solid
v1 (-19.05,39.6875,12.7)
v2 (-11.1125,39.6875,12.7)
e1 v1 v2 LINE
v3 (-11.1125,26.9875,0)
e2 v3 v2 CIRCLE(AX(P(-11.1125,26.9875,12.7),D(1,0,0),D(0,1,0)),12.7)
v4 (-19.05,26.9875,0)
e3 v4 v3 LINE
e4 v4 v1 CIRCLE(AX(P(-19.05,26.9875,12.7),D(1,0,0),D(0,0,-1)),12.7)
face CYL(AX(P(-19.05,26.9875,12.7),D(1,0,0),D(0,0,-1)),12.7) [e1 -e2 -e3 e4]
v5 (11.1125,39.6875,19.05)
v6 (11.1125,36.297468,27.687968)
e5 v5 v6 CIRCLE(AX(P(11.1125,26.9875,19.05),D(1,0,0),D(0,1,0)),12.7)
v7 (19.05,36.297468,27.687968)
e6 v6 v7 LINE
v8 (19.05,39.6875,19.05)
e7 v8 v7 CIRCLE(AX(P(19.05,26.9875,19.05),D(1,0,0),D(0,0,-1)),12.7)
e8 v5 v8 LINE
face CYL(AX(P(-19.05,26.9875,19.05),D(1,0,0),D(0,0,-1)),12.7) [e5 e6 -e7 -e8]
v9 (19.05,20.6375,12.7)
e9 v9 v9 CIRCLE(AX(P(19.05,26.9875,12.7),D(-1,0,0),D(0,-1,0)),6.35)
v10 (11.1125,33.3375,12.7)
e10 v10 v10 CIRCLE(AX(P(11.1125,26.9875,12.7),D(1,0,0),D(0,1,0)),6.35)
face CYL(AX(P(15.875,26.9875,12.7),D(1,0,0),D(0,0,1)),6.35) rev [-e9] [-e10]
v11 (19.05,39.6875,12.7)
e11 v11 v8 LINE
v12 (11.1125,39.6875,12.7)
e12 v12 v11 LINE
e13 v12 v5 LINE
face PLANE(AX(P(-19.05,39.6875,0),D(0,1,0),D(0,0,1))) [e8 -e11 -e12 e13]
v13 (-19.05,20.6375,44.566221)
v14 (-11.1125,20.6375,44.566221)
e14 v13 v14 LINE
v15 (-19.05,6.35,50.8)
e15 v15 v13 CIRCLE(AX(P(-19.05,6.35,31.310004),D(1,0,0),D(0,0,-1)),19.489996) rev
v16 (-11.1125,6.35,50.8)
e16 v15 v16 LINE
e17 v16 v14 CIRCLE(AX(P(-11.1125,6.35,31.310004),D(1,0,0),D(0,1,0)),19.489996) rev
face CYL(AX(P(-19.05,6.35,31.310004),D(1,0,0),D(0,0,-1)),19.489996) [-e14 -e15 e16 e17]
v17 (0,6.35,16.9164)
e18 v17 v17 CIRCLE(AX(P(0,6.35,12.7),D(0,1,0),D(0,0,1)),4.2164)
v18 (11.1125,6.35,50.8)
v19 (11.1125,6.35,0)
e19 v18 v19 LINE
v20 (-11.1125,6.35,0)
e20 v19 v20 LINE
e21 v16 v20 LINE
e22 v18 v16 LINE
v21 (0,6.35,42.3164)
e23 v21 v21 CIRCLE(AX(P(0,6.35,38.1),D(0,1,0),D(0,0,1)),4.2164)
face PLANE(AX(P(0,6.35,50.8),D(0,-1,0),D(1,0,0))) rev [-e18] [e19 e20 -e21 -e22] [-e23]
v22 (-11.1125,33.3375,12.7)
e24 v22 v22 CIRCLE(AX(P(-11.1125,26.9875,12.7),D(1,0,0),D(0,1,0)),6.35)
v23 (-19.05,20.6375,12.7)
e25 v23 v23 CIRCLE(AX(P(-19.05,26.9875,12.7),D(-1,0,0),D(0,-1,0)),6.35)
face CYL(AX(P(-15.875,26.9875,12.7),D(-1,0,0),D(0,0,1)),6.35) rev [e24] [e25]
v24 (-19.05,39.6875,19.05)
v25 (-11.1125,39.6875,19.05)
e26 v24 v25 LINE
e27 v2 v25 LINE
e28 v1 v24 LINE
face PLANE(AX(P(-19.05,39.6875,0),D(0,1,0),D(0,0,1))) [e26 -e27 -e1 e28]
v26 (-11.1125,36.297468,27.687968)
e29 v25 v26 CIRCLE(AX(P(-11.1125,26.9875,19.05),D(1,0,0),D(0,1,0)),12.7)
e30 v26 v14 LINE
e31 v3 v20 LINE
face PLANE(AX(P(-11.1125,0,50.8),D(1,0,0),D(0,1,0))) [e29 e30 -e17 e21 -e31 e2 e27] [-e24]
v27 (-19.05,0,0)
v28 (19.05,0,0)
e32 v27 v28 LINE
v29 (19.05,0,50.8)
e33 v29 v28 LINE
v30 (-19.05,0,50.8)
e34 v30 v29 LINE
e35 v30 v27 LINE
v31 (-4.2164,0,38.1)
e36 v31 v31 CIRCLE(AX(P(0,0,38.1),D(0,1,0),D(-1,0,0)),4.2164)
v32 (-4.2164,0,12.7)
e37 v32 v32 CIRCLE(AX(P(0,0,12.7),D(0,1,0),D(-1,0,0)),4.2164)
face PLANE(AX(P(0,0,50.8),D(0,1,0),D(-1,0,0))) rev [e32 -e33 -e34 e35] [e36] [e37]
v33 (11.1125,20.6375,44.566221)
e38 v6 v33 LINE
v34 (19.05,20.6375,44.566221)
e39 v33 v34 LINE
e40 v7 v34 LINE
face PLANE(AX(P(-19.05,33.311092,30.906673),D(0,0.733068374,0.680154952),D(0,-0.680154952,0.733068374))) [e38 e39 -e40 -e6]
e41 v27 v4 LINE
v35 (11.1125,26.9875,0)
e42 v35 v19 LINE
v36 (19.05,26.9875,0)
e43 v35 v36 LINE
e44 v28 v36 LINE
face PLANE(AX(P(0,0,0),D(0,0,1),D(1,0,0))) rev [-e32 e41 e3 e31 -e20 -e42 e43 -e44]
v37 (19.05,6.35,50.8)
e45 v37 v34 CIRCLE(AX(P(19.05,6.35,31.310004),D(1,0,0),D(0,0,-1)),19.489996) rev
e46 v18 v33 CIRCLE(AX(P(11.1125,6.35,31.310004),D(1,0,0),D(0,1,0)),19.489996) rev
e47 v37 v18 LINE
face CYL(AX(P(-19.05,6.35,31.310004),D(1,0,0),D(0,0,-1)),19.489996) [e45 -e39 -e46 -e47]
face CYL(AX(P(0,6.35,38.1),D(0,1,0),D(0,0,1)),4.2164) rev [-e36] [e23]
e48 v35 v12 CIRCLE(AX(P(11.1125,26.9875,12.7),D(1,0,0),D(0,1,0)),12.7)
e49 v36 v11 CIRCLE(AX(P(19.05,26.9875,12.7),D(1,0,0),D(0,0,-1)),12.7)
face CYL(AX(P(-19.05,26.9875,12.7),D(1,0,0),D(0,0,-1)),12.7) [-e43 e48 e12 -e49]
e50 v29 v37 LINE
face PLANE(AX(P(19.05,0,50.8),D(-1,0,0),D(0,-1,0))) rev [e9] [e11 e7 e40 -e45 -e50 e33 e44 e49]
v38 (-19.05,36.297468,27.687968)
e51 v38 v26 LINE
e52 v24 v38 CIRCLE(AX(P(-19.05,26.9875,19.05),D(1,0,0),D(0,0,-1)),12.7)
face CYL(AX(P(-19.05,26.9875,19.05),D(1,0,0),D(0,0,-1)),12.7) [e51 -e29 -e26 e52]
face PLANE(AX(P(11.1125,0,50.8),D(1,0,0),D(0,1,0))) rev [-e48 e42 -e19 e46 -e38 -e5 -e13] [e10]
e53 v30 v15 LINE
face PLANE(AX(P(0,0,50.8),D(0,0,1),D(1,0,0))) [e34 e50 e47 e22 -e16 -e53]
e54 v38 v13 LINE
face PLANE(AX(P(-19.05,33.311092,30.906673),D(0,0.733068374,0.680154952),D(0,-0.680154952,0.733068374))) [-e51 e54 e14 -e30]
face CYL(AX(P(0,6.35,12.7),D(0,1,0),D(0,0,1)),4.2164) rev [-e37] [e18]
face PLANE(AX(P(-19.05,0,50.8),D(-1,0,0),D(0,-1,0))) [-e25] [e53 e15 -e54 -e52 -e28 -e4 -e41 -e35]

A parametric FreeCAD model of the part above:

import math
import FreeCAD as App
import Part
import Sketcher
Q = App.Units.Quantity


def add_polygon(sketch, points):
    """Adds a closed chain of lines whose ends are joined by coincident constraints."""
    first, n = sketch.GeometryCount, len(points)
    for a, b in zip(points, points[1:] + points[:1]):
        sketch.addGeometry(Part.LineSegment(App.Vector(*a, 0), App.Vector(*b, 0)), False)
    for i in range(n):
        sketch.addConstraint(Sketcher.Constraint("Coincident", first + i, 2, first + (i + 1) % n, 1))

doc = App.newDocument("Part")
body = doc.addObject("PartDesign::Body", "Body")

sketch1 = doc.addObject("Sketcher::SketchObject", "Sketch")
body.addObject(sketch1)
sketch1.AttachmentSupport = (doc.XY_Plane, [""])
sketch1.MapMode = "FlatFace"
add_polygon(sketch1, [(-19, 0), (19, 0), (19, 51), (11, 51), (11, 6), (-11, 6), (-11, 51), (-19, 51)])
sketch1.addConstraint(Sketcher.Constraint("Horizontal", 0))
sketch1.addConstraint(Sketcher.Constraint("Vertical", 1))
sketch1.addConstraint(Sketcher.Constraint("Horizontal", 2))
sketch1.addConstraint(Sketcher.Constraint("Vertical", 3))
sketch1.addConstraint(Sketcher.Constraint("Horizontal", 4))
sketch1.addConstraint(Sketcher.Constraint("Vertical", 5))
sketch1.addConstraint(Sketcher.Constraint("Horizontal", 6))
sketch1.addConstraint(Sketcher.Constraint("Vertical", 7))
sketch1.addConstraint(Sketcher.Constraint("Symmetric", 0, 2, 7, 2, -1, 1))
sketch1.addConstraint(Sketcher.Constraint("Symmetric", 2, 2, 5, 2, -2))
sketch1.addConstraint(Sketcher.Constraint("DistanceY", 1, 1, 1, 2, Q("2 in")))
sketch1.addConstraint(Sketcher.Constraint("DistanceX", 0, 1, 0, 2, Q("1.5 in")))
sketch1.addConstraint(Sketcher.Constraint("DistanceY", 3, 2, 3, 1, Q("1.75 in")))
sketch1.addConstraint(Sketcher.Constraint("DistanceX", 2, 2, 2, 1, Q("0.3125 in")))
pad1 = doc.addObject("PartDesign::Pad", "Pad")
body.addObject(pad1)
pad1.Profile = sketch1
pad1.Length = Q("2 in")

sketch2 = doc.addObject("Sketcher::SketchObject", "Sketch001")
body.addObject(sketch2)
sketch2.AttachmentSupport = (doc.YZ_Plane, [""])
sketch2.MapMode = "FlatFace"
sketch2.AttachmentOffset = App.Placement(App.Vector(0, 0, -0.75 * 25.4), App.Rotation())
sketch2.addGeometry(Part.Circle(App.Vector(27, 13, 0), App.Vector(0, 0, 1), 6), False)
sketch2.addConstraint(Sketcher.Constraint("Diameter", 0, Q("0.5 in")))
sketch2.addConstraint(Sketcher.Constraint("DistanceY", -1, 1, 0, 3, Q("0.5 in")))
sketch2.addConstraint(Sketcher.Constraint("DistanceX", -1, 1, 0, 3, Q("1.0625 in")))
pocket1 = doc.addObject("PartDesign::Pocket", "Pocket")
body.addObject(pocket1)
pocket1.Profile = sketch2
pocket1.Length = Q("0.125 in")
pocket1.Reversed = True
doc.recompute()

mirrored = doc.addObject("PartDesign::Mirrored", "Mirrored")
body.addObject(mirrored)
mirrored.Originals = [pocket1]
mirrored.MirrorPlane = (doc.YZ_Plane, [""])
body.Tip = mirrored

sketch3 = doc.addObject("Sketcher::SketchObject", "Sketch002")
body.addObject(sketch3)
sketch3.AttachmentSupport = (doc.YZ_Plane, [""])
sketch3.MapMode = "FlatFace"
sketch3.addGeometry(Part.Circle(App.Vector(27, 13, 0), App.Vector(0, 0, 1), 6), False)
sketch3.addConstraint(Sketcher.Constraint("Diameter", 0, Q("0.5 in")))
sketch3.addConstraint(Sketcher.Constraint("DistanceY", -1, 1, 0, 3, Q("0.5 in")))
sketch3.addConstraint(Sketcher.Constraint("DistanceX", -1, 1, 0, 3, Q("1.0625 in")))
pocket2 = doc.addObject("PartDesign::Pocket", "Pocket001")
body.addObject(pocket2)
pocket2.Profile = sketch3
pocket2.Type = "ThroughAll"
pocket2.Midplane = True

sketch4 = doc.addObject("Sketcher::SketchObject", "Sketch003")
body.addObject(sketch4)
sketch4.AttachmentSupport = (doc.XZ_Plane, [""])
sketch4.MapMode = "FlatFace"
sketch4.AttachmentOffset = App.Placement(App.Vector(0, 0, -0.25 * 25.4), App.Rotation())
sketch4.addGeometry(Part.Circle(App.Vector(0, 38.1, 0), App.Vector(0, 0, 1), 4.2), False)
sketch4.addGeometry(Part.Circle(App.Vector(0, 12.7, 0), App.Vector(0, 0, 1), 4.2), False)
sketch4.addConstraint(Sketcher.Constraint("Equal", 0, 1))
sketch4.addConstraint(Sketcher.Constraint("PointOnObject", 0, 3, -2))
sketch4.addConstraint(Sketcher.Constraint("PointOnObject", 1, 3, -2))
sketch4.addConstraint(Sketcher.Constraint("Diameter", 0, Q("0.332 in")))
sketch4.addConstraint(Sketcher.Constraint("DistanceY", 1, 3, 0, 3, Q("1 in")))
sketch4.addConstraint(Sketcher.Constraint("DistanceY", -1, 1, 0, 3, Q("1.5 in")))
doc.recompute()
hole = doc.addObject("PartDesign::Hole", "Hole")
body.addObject(hole)
hole.Profile = sketch4
hole.ThreadType = "None"
hole.Diameter = Q("0.332 in")
hole.DepthType = "Dimension"
hole.Depth = Q("0.75 in")
hole.DrillPoint = "Angled"
hole.DrillPointAngle = 118
hole.Reversed = True

sketch5 = doc.addObject("Sketcher::SketchObject", "Sketch004")
body.addObject(sketch5)
sketch5.AttachmentSupport = (doc.YZ_Plane, [""])
sketch5.MapMode = "FlatFace"
sketch5.addGeometry(Part.LineSegment(App.Vector(51, 0, 0), App.Vector(51, 51, 0)), False)
sketch5.addGeometry(Part.LineSegment(App.Vector(51, 51, 0), App.Vector(6, 51, 0)), False)
sketch5.addGeometry(Part.ArcOfCircle(Part.Circle(App.Vector(6, 31, 0), App.Vector(0, 0, 1), 19), math.radians(43), math.radians(90)), False)
sketch5.addGeometry(Part.LineSegment(App.Vector(21, 45, 0), App.Vector(36, 28, 0)), False)
sketch5.addGeometry(Part.ArcOfCircle(Part.Circle(App.Vector(27, 19, 0), App.Vector(0, 0, 1), 13), math.radians(0), math.radians(43)), False)
sketch5.addGeometry(Part.LineSegment(App.Vector(40, 19, 0), App.Vector(40, 13, 0)), False)
sketch5.addGeometry(Part.ArcOfCircle(Part.Circle(App.Vector(27, 13, 0), App.Vector(0, 0, 1), 13), math.radians(-90), math.radians(0)), False)
sketch5.addGeometry(Part.LineSegment(App.Vector(27, 0, 0), App.Vector(51, 0, 0)), False)
sketch5.addConstraint(Sketcher.Constraint("Coincident", 0, 2, 1, 1))
sketch5.addConstraint(Sketcher.Constraint("Tangent", 1, 2, 2, 2))
sketch5.addConstraint(Sketcher.Constraint("Tangent", 2, 1, 3, 1))
sketch5.addConstraint(Sketcher.Constraint("Tangent", 3, 2, 4, 2))
sketch5.addConstraint(Sketcher.Constraint("Tangent", 4, 1, 5, 1))
sketch5.addConstraint(Sketcher.Constraint("Tangent", 5, 2, 6, 2))
sketch5.addConstraint(Sketcher.Constraint("Tangent", 6, 1, 7, 1))
sketch5.addConstraint(Sketcher.Constraint("Coincident", 7, 2, 0, 1))
sketch5.addConstraint(Sketcher.Constraint("Vertical", 0))
sketch5.addConstraint(Sketcher.Constraint("Horizontal", 1))
sketch5.addConstraint(Sketcher.Constraint("Vertical", 5))
sketch5.addConstraint(Sketcher.Constraint("Horizontal", 7))
sketch5.addConstraint(Sketcher.Constraint("Equal", 4, 6))
sketch5.addConstraint(Sketcher.Constraint("PointOnObject", 6, 1, -1))
sketch5.addConstraint(Sketcher.Constraint("Radius", 4, Q("0.5 in")))
sketch5.addConstraint(Sketcher.Constraint("DistanceY", 0, 1, 0, 2, Q("2 in")))
sketch5.addConstraint(Sketcher.Constraint("DistanceX", -1, 1, 0, 2, Q("2 in")))
sketch5.addConstraint(Sketcher.Constraint("DistanceX", 1, 2, 1, 1, Q("1.75 in")))
sketch5.addConstraint(Sketcher.Constraint("DistanceY", 5, 2, 5, 1, Q("0.25 in")))
sketch5.addConstraint(Sketcher.Constraint("DistanceX", 7, 1, 7, 2, Q("0.9375 in")))
sketch5.addConstraint(Sketcher.Constraint("DistanceX", 2, 1, 4, 3, Q("0.25 in")))
pocket3 = doc.addObject("PartDesign::Pocket", "Pocket002")
body.addObject(pocket3)
pocket3.Profile = sketch5
pocket3.Type = "ThroughAll"
pocket3.Midplane = True

doc.recompute()
